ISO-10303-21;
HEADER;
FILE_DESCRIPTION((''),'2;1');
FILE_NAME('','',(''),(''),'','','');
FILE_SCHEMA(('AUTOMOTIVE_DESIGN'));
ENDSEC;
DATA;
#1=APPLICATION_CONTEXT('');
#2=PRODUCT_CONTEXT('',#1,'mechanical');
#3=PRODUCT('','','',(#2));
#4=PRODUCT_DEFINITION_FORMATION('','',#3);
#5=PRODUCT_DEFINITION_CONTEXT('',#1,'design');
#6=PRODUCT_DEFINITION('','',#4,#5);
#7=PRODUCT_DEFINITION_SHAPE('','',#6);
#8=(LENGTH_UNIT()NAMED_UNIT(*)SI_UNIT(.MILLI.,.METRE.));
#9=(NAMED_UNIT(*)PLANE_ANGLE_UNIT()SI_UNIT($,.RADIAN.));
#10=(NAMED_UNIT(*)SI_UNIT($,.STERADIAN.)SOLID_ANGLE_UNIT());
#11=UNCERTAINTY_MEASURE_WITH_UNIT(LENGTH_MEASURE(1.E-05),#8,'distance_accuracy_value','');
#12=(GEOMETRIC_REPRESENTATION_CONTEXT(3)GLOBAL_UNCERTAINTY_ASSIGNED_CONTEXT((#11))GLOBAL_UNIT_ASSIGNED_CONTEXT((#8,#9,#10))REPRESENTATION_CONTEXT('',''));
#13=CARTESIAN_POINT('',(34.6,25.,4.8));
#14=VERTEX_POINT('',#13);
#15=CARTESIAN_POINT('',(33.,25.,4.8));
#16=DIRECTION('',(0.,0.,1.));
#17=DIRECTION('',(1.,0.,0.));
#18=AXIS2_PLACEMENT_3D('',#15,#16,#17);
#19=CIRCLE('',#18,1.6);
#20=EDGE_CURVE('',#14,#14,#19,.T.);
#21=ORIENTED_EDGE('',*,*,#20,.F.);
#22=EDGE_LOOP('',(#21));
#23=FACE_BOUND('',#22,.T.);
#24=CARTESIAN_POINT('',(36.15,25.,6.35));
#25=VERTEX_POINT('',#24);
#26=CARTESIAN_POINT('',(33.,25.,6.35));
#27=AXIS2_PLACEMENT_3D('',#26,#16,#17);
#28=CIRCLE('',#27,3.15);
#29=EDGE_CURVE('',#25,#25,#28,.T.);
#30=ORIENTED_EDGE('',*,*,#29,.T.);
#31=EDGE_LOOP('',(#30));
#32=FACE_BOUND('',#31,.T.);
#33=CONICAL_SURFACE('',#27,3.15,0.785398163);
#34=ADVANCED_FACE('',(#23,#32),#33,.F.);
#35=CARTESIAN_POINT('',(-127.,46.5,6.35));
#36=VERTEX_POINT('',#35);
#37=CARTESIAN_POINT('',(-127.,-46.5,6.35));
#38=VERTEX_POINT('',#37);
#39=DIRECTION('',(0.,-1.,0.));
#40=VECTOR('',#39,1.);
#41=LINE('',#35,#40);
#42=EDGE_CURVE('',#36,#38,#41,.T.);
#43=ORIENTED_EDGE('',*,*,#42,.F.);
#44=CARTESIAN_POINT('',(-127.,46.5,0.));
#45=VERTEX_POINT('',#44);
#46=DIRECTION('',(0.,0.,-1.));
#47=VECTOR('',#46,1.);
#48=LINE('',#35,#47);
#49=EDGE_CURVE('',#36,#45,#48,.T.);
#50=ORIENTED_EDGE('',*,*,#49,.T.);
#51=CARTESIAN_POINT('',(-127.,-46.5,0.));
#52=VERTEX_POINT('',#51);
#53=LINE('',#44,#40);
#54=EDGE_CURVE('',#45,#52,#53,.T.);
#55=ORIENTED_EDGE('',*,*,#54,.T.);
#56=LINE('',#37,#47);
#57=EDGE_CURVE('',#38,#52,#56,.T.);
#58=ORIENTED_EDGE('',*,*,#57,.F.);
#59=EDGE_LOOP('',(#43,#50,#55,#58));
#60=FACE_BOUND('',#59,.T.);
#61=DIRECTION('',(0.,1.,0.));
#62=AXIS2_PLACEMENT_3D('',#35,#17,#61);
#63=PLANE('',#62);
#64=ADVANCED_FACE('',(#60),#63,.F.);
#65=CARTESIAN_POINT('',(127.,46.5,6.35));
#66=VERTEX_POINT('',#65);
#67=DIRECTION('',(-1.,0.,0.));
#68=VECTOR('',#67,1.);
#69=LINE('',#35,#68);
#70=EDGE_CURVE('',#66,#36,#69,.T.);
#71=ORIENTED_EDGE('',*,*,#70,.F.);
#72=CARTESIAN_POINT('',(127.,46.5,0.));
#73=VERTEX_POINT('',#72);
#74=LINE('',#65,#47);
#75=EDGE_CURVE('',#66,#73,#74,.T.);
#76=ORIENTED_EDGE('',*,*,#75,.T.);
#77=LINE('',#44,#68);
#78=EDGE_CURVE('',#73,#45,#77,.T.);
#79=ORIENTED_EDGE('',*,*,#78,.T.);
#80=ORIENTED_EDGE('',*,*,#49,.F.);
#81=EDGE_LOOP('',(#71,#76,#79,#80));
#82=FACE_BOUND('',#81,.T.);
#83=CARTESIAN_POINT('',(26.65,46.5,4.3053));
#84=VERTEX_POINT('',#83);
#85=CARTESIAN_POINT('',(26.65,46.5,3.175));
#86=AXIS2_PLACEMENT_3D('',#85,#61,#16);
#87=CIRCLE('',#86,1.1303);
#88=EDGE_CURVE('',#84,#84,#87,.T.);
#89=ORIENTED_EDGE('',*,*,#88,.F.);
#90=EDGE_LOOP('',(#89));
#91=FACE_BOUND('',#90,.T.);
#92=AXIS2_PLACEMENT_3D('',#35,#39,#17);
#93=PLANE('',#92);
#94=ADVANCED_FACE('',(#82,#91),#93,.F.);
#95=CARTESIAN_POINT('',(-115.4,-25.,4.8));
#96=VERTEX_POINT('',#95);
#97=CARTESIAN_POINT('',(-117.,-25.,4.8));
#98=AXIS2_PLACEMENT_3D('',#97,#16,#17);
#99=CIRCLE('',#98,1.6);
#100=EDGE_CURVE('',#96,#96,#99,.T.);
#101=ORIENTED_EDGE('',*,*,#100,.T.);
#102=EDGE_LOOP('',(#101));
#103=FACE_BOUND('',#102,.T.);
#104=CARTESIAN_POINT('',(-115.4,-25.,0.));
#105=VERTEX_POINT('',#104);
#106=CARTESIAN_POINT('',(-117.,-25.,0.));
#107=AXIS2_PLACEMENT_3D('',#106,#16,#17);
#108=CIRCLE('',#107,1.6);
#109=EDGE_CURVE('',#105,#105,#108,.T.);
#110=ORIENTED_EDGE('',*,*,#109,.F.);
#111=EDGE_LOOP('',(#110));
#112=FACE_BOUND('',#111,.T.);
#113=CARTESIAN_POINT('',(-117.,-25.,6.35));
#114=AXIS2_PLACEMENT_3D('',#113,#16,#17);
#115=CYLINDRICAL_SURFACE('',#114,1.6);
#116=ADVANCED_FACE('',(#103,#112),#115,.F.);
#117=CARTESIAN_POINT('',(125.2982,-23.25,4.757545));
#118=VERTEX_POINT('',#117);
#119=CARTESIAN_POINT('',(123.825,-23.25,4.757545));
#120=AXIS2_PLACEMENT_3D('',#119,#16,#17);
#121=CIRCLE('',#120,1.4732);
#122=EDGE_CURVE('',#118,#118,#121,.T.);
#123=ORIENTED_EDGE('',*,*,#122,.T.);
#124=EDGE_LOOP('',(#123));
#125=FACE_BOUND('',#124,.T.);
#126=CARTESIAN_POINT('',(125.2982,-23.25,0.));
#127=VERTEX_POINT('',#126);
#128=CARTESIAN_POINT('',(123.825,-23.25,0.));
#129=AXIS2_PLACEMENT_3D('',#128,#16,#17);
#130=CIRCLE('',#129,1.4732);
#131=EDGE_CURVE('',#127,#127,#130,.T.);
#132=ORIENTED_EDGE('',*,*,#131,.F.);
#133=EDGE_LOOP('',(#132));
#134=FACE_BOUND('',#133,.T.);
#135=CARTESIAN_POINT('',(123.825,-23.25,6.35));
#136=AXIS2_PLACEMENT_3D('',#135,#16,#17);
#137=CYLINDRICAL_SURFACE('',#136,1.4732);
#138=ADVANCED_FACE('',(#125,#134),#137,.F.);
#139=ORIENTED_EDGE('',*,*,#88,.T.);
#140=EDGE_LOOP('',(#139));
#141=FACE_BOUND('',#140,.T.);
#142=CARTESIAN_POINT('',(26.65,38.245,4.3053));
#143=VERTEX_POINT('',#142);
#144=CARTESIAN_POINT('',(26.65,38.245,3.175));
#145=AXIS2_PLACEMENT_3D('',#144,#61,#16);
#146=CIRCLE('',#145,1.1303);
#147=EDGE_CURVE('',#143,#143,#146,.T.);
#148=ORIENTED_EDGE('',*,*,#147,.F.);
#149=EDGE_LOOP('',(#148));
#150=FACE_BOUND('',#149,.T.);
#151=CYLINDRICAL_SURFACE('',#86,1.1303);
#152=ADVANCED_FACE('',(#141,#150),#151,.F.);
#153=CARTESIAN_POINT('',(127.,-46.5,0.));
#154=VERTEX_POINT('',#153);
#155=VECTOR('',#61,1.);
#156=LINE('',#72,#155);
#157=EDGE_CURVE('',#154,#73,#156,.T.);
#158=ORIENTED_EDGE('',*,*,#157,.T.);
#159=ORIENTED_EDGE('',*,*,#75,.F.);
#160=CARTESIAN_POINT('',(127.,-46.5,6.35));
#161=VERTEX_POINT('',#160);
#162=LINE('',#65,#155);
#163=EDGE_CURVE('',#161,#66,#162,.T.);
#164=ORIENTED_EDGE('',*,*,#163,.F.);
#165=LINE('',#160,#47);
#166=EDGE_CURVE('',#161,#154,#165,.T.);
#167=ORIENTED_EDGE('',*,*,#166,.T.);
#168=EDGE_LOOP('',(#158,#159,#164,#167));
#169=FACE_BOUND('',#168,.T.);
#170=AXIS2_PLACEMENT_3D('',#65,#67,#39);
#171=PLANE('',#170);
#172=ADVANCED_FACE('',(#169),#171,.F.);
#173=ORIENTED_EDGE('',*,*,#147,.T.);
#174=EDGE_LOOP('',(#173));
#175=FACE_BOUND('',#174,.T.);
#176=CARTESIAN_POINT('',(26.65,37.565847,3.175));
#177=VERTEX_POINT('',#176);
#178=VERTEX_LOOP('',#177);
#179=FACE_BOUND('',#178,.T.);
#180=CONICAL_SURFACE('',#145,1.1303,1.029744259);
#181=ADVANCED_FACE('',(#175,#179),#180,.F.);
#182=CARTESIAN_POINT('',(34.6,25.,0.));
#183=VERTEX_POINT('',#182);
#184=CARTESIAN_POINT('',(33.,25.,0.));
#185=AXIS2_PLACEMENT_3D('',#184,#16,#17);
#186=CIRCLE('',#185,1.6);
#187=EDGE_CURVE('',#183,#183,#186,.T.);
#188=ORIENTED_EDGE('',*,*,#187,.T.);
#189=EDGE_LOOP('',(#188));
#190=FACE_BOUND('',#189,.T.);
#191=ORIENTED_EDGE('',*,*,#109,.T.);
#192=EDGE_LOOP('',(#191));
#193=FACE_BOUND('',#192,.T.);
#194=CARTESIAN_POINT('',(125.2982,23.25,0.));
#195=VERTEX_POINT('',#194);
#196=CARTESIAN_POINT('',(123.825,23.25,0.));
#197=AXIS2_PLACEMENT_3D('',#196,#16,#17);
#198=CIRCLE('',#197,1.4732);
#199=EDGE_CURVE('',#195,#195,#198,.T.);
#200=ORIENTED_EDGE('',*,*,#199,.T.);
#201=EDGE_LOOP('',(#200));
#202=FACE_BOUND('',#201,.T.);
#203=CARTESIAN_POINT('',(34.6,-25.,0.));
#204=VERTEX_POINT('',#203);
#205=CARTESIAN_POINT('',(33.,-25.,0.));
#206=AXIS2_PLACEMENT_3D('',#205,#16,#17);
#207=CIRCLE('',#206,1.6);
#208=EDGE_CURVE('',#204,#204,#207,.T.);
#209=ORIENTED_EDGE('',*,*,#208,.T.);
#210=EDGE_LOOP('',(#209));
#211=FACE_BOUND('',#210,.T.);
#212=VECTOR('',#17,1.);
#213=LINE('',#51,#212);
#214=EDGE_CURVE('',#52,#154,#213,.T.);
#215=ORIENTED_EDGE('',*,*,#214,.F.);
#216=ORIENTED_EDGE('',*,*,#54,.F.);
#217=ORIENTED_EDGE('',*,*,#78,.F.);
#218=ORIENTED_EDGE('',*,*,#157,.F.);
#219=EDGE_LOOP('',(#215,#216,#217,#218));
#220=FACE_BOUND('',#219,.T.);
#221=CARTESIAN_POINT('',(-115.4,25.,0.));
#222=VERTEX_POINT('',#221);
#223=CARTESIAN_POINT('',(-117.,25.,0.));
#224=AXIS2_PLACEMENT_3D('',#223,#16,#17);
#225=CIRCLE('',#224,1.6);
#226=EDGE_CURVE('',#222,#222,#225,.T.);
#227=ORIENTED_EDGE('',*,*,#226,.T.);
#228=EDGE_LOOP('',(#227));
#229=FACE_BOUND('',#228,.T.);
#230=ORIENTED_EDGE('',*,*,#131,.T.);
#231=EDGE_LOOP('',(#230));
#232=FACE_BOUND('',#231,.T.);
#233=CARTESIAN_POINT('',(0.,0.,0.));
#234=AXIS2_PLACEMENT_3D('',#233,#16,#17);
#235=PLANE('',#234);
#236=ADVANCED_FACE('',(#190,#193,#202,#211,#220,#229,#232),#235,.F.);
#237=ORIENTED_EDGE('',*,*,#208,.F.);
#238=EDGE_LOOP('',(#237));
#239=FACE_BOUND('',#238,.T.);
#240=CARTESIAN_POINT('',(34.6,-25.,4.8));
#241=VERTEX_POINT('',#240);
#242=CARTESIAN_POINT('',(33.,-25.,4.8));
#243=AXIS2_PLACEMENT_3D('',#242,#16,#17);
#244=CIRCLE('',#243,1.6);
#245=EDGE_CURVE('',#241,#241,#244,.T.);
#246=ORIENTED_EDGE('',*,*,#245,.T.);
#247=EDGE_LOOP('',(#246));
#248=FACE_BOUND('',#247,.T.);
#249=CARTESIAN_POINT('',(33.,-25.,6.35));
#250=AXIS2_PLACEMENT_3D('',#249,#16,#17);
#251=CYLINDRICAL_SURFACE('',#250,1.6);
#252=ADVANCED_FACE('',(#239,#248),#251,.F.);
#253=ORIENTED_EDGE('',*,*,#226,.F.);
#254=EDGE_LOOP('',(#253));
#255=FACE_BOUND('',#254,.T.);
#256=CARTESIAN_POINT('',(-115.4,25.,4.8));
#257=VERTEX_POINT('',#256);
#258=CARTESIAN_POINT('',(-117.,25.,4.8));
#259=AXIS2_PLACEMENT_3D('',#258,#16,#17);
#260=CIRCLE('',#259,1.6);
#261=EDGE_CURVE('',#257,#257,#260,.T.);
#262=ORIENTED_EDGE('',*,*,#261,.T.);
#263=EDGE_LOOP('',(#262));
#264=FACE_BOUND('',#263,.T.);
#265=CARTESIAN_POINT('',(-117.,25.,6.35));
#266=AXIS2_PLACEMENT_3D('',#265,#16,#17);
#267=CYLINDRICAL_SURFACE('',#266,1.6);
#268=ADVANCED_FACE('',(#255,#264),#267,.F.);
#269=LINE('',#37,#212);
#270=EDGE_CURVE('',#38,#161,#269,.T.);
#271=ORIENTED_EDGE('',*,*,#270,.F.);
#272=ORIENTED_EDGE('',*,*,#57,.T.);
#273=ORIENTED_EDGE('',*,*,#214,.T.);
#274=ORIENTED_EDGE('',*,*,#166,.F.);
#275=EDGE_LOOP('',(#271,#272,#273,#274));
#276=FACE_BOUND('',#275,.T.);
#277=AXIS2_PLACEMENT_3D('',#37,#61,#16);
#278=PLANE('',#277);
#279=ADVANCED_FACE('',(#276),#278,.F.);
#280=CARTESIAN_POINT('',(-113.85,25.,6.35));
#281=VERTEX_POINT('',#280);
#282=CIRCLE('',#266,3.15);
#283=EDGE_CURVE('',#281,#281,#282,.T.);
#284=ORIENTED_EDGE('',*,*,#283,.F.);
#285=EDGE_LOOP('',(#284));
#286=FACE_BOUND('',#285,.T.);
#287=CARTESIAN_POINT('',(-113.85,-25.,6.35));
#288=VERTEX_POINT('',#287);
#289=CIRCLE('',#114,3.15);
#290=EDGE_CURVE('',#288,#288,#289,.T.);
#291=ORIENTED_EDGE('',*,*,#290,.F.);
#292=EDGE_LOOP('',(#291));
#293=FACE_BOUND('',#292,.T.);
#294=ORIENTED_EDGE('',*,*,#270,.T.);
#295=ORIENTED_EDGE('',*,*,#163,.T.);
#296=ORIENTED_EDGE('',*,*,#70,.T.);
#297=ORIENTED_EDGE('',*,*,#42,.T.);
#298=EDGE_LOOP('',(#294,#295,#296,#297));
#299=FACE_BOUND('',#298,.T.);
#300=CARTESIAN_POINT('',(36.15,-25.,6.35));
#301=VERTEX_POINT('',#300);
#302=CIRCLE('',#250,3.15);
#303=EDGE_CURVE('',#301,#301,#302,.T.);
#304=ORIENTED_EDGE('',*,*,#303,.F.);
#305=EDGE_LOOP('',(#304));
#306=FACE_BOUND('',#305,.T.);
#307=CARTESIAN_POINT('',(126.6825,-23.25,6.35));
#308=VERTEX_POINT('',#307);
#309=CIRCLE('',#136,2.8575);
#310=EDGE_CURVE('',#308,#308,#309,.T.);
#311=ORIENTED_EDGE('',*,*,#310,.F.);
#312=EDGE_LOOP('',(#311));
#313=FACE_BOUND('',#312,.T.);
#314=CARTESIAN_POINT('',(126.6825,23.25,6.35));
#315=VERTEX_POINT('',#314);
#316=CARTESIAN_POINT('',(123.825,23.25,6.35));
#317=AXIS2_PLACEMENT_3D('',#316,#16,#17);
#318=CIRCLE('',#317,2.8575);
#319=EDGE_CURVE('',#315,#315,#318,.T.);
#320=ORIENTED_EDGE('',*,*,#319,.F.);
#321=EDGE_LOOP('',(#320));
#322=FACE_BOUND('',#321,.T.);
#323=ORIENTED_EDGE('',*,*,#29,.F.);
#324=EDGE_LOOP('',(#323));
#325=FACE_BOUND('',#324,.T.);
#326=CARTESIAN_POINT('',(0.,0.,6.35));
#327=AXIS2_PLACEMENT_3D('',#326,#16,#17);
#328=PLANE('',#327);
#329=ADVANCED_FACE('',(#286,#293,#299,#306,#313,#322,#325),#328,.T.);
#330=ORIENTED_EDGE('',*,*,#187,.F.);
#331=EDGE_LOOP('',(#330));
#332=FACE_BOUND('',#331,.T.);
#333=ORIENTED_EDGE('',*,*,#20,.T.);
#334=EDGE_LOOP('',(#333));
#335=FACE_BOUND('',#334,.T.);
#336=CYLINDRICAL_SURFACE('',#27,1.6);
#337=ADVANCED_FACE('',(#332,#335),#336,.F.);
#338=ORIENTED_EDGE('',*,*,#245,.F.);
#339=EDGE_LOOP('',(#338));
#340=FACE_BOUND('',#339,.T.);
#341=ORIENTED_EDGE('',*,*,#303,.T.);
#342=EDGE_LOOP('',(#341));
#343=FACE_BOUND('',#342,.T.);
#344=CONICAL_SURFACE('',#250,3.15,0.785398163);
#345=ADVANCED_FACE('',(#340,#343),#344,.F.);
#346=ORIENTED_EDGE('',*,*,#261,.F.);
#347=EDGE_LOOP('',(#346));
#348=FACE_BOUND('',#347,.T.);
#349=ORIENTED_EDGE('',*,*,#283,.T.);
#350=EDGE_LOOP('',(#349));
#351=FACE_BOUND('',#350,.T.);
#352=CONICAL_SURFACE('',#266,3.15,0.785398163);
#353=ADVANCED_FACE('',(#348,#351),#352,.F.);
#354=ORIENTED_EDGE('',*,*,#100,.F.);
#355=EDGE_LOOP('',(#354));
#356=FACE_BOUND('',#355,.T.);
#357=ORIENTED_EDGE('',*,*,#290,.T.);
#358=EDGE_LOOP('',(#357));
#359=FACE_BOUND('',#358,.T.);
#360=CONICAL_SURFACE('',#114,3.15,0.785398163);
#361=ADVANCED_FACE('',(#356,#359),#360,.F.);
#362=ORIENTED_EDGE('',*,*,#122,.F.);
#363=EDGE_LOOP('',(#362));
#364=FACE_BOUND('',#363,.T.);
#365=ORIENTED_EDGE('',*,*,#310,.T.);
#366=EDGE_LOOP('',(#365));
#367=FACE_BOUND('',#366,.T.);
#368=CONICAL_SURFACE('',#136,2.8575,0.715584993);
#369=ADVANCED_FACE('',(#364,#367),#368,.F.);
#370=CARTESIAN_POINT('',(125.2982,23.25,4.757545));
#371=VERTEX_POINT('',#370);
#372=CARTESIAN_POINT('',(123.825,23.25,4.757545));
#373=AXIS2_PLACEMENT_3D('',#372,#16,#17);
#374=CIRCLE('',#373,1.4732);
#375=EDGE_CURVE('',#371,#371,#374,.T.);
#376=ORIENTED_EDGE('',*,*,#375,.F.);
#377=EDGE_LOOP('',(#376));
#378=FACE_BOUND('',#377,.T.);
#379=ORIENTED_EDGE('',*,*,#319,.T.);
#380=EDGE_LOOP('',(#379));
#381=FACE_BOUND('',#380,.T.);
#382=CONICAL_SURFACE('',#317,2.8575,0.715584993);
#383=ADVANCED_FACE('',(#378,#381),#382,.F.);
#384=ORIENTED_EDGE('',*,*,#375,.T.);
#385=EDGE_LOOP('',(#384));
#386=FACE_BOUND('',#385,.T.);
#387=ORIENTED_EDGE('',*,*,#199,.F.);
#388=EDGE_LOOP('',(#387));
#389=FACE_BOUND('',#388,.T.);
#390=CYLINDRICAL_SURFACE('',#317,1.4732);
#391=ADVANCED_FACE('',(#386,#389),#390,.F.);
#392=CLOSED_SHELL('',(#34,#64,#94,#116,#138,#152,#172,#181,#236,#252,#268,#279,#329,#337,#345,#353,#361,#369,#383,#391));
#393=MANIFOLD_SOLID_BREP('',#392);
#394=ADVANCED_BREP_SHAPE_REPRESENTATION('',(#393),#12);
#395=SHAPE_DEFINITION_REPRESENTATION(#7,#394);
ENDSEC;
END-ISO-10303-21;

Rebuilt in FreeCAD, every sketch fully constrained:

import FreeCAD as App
import Part
import Sketcher
Q = App.Units.Quantity


def add_polygon(sketch, points):
    """Adds a closed chain of lines whose ends are joined by coincident constraints."""
    first, n = sketch.GeometryCount, len(points)
    for a, b in zip(points, points[1:] + points[:1]):
        sketch.addGeometry(Part.LineSegment(App.Vector(*a, 0), App.Vector(*b, 0)), False)
    for i in range(n):
        sketch.addConstraint(Sketcher.Constraint("Coincident", first + i, 2, first + (i + 1) % n, 1))

doc = App.newDocument("Part")
body = doc.addObject("PartDesign::Body", "Body")

# Sketch on XY plane
sketch1 = body.newObject("Sketcher::SketchObject", "Sketch")
sketch1.AttachmentSupport = (doc.getObject("XY_Plane"), [""])
sketch1.MapMode = "FlatFace"
add_polygon(sketch1, [(-127, 46), (-127, -46), (127, -46), (127, 46)])  # lines 0-3
sketch1.addConstraint([
    Sketcher.Constraint("Vertical", 0),
    Sketcher.Constraint("Horizontal", 1),
    Sketcher.Constraint("Vertical", 2),
    Sketcher.Constraint("Horizontal", 3),
    Sketcher.Constraint("Symmetric", 0, 2, 2, 2, -1, 1),
    Sketcher.Constraint("DistanceX", 1, 1, 1, 2, Q("10 in")),
    Sketcher.Constraint("DistanceY", 0, 2, 0, 1, 93.0),
])
pad1 = body.newObject("PartDesign::Pad", "Pad")
pad1.Profile = sketch1
pad1.Length = Q("0.25 in")

# Sketch on XY plane
sketch2 = body.newObject("Sketcher::SketchObject", "Sketch001")
sketch2.AttachmentSupport = (doc.getObject("XY_Plane"), [""])
sketch2.MapMode = "FlatFace"
sketch2.AttachmentOffset = App.Placement(App.Vector(0, 0, 0.25 * 25.4), App.Rotation())
sketch2.addGeometry([
    Part.Circle(App.Vector(123.8, 23.2, 0), App.Vector(0, 0, 1), 1.5),
    Part.Circle(App.Vector(123.8, -23.3, 0), App.Vector(0, 0, 1), 1.5),
], False)
sketch2.addConstraint([
    Sketcher.Constraint("Equal", 0, 1),
    Sketcher.Constraint("Symmetric", 0, 3, 1, 3, -1),
    Sketcher.Constraint("Diameter", 0, Q("0.116 in")),
    Sketcher.Constraint("DistanceX", -1, 1, 0, 3, Q("4.875 in")),
    Sketcher.Constraint("DistanceY", -1, 1, 0, 3, 23.25),
])
doc.recompute()
hole = body.newObject("PartDesign::Hole", "Hole")
hole.Profile = sketch2
hole.ThreadType = "None"
hole.Diameter = Q("0.116 in")
hole.DepthType = "ThroughAll"
hole.HoleCutType = "Countersink"
hole.HoleCutDiameter = Q("0.225 in")
hole.HoleCutCountersinkAngle = 82

# Sketch on XY plane
sketch3 = body.newObject("Sketcher::SketchObject", "Sketch002")
sketch3.AttachmentSupport = (doc.getObject("XY_Plane"), [""])
sketch3.MapMode = "FlatFace"
sketch3.AttachmentOffset = App.Placement(App.Vector(0, 0, 0.25 * 25.4), App.Rotation())
sketch3.addGeometry([
    Part.Circle(App.Vector(-117, 25, 0), App.Vector(0, 0, 1), 1.6),
    Part.Circle(App.Vector(-117, -25, 0), App.Vector(0, 0, 1), 1.6),
    Part.Circle(App.Vector(33, -25, 0), App.Vector(0, 0, 1), 1.6),
    Part.Circle(App.Vector(33, 25, 0), App.Vector(0, 0, 1), 1.6),
], False)
sketch3.addConstraint([
    Sketcher.Constraint("Equal", 0, 1),
    Sketcher.Constraint("Equal", 1, 2),
    Sketcher.Constraint("Equal", 2, 3),
    Sketcher.Constraint("Symmetric", 0, 3, 1, 3, -1),
    Sketcher.Constraint("Symmetric", 2, 3, 3, 3, -1),
    Sketcher.Constraint("Horizontal", 1, 3, 2, 3),
    Sketcher.Constraint("Diameter", 0, 3.2),
    Sketcher.Constraint("DistanceX", 0, 3, -1, 1, 117.0),
    Sketcher.Constraint("DistanceY", -1, 1, 0, 3, 25.0),
    Sketcher.Constraint("DistanceX", -1, 1, 2, 3, 33.0),
])
doc.recompute()
hole2 = body.newObject("PartDesign::Hole", "Hole001")
hole2.Profile = sketch3
hole2.ThreadType = "None"
hole2.Diameter = 3.2
hole2.DepthType = "ThroughAll"
hole2.HoleCutType = "Countersink"
hole2.HoleCutDiameter = 6.3
hole2.HoleCutCountersinkAngle = 90

# Sketch on XZ plane
sketch4 = body.newObject("Sketcher::SketchObject", "Sketch003")
sketch4.AttachmentSupport = (doc.getObject("XZ_Plane"), [""])
sketch4.MapMode = "FlatFace"
sketch4.AttachmentOffset = App.Placement(App.Vector(0, 0, -46.5), App.Rotation())
sketch4.addGeometry(Part.Circle(App.Vector(26.6, 3.2, 0), App.Vector(0, 0, 1), 1.1), False)
sketch4.addConstraint([
    Sketcher.Constraint("Diameter", 0, Q("0.089 in")),
    Sketcher.Constraint("DistanceY", -1, 1, 0, 3, Q("0.125 in")),
    Sketcher.Constraint("DistanceX", -1, 1, 0, 3, 26.65),
])
doc.recompute()
hole3 = body.newObject("PartDesign::Hole", "Hole002")
hole3.Profile = sketch4
hole3.ThreadType = "None"
hole3.Diameter = Q("0.089 in")
hole3.DepthType = "Dimension"
hole3.Depth = Q("0.325 in")
hole3.DrillPoint = "Angled"
hole3.DrillPointAngle = 118
hole3.Reversed = True

doc.recompute()
